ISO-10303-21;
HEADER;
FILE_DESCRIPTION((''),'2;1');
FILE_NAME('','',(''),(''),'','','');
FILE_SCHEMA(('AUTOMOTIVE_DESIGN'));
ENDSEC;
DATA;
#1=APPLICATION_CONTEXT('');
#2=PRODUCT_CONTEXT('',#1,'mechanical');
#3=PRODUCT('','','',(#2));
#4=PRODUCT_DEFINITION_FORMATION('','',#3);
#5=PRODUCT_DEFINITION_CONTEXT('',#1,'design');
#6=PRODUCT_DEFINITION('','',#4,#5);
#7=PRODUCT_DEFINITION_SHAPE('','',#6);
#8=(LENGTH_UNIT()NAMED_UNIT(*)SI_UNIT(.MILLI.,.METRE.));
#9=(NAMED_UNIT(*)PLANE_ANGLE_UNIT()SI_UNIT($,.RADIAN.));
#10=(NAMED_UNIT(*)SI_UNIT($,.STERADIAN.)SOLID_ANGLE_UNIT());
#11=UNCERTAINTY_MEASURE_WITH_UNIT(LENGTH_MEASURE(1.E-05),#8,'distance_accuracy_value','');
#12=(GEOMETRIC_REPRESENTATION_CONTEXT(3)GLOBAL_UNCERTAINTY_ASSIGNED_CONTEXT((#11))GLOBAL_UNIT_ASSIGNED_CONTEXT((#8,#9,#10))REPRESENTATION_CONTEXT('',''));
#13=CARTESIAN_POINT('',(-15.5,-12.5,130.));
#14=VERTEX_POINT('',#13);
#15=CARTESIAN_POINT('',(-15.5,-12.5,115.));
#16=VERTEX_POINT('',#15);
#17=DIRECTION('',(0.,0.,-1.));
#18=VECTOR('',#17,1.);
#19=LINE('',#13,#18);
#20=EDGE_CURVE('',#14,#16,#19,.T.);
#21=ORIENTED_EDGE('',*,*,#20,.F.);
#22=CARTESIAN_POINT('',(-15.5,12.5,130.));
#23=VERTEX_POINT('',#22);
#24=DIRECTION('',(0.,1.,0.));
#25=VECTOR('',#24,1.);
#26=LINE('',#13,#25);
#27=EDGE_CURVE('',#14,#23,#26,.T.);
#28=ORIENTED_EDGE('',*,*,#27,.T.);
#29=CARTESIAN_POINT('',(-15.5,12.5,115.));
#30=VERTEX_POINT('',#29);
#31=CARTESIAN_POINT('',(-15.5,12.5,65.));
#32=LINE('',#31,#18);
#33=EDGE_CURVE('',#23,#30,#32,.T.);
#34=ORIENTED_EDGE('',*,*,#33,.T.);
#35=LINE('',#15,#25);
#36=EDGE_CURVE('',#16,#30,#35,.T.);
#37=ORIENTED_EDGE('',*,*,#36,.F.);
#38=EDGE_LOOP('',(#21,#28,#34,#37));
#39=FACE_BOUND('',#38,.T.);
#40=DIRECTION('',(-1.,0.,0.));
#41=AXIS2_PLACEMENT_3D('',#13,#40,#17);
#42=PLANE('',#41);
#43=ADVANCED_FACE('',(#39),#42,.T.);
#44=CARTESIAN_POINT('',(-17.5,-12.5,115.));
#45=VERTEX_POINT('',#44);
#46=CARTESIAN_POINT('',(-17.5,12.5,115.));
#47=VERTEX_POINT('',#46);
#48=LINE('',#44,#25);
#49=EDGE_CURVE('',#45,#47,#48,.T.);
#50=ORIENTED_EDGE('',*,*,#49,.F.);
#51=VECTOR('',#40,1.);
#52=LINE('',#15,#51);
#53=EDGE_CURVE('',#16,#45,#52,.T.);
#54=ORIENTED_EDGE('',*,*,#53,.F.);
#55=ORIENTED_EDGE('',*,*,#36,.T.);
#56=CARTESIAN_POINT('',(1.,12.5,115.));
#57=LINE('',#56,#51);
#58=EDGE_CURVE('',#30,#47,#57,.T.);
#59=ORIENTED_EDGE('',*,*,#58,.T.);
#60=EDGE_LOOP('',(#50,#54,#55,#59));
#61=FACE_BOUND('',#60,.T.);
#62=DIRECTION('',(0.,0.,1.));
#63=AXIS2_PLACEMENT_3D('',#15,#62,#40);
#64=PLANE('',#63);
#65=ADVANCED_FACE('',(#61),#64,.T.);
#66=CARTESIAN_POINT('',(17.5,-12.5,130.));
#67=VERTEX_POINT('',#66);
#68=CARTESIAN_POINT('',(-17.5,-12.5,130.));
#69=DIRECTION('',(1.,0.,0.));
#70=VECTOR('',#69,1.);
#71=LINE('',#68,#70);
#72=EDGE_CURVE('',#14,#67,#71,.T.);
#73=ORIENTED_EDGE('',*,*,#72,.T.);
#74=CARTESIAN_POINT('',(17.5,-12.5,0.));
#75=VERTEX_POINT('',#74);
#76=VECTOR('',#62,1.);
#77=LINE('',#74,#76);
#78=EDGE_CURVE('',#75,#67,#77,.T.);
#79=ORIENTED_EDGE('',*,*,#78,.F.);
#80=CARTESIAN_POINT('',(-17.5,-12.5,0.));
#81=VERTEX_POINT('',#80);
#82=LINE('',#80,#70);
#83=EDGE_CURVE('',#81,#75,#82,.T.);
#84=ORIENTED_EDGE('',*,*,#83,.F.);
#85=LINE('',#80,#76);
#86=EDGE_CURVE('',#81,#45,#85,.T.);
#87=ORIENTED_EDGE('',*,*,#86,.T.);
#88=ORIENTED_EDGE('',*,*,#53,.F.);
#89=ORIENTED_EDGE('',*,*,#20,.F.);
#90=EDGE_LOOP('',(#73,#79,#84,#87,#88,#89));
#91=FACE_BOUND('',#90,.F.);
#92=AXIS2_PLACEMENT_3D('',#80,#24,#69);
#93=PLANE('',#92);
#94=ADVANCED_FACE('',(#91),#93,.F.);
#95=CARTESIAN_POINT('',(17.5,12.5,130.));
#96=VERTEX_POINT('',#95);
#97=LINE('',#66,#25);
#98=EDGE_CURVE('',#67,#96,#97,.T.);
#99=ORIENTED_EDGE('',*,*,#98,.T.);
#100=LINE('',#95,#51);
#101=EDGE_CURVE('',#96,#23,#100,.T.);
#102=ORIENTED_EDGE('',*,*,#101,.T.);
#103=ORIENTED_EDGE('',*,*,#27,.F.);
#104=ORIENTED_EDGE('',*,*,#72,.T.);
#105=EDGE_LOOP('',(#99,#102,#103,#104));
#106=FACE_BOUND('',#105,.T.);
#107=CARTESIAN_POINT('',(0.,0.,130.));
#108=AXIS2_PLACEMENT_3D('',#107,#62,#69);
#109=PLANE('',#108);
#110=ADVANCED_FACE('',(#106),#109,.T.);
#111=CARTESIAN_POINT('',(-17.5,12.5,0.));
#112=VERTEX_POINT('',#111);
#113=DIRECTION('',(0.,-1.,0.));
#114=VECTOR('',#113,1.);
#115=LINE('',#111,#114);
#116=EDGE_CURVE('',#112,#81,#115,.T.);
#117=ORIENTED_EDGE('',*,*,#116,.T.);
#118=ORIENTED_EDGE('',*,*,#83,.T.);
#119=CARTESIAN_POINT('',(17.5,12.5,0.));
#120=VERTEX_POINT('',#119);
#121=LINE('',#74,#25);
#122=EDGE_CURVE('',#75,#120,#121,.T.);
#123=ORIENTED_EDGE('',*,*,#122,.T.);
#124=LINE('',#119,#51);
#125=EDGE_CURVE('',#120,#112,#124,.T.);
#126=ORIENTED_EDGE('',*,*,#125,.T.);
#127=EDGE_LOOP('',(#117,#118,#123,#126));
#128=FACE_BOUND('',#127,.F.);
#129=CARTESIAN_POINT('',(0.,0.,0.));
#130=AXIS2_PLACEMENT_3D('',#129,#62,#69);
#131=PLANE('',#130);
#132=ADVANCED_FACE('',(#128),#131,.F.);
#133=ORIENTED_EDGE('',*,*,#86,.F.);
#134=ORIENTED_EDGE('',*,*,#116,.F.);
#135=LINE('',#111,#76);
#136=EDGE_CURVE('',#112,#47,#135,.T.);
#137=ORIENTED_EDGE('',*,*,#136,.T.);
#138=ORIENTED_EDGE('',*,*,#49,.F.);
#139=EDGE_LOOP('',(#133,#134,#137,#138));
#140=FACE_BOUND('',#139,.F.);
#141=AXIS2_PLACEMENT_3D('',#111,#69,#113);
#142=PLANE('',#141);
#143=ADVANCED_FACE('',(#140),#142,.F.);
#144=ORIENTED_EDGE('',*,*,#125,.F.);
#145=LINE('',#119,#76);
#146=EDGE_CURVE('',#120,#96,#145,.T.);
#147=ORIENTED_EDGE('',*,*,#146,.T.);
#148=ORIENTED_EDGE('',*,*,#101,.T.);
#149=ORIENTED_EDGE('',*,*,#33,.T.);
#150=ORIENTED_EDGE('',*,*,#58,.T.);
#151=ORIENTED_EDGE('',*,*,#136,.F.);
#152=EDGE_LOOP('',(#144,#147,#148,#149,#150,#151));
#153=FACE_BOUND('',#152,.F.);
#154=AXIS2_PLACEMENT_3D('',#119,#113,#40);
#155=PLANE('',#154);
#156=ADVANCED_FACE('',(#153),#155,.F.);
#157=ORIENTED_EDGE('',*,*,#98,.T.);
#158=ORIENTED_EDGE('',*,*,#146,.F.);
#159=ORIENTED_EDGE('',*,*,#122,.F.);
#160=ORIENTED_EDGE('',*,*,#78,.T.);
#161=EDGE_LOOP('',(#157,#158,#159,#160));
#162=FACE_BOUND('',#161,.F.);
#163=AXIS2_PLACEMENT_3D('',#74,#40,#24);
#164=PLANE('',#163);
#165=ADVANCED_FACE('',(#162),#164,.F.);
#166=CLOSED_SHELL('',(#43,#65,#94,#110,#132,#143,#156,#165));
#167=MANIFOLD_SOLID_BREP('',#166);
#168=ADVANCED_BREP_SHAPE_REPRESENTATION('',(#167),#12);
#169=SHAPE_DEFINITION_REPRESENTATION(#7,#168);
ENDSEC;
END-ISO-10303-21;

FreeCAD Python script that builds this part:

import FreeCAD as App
import Part
import Sketcher
from FreeCAD import Vector
Q = App.Units.Quantity

doc = App.newDocument("Part")
params = doc.addObject("Spreadsheet::Sheet", "Params")
for row, (alias, value) in enumerate([
    ("sketch1_width", "35 mm"),
    ("sketch1_height", "25 mm"),
    ("pad1_length", "130 mm"),
    ("sketch2_width", "2 mm"),
    ("sketch2_height", "15 mm"),
], start=1):
    params.set(f"A{row}", alias)
    params.set(f"B{row}", "=" + value)
    params.setAlias(f"B{row}", alias)

body = doc.addObject("PartDesign::Body", "Body")

# Sketch on XY plane
sketch1 = body.newObject("Sketcher::SketchObject", "Sketch")
sketch1.AttachmentSupport = (doc.getObject("XY_Plane"), [""])
sketch1.MapMode = "FlatFace"
sketch1.addGeometry([
    Part.LineSegment(Vector(-17.5, 12.5, 0), Vector(-17.5, -12.5, 0)),
    Part.LineSegment(Vector(-17.5, -12.5, 0), Vector(17.5, -12.5, 0)),
    Part.LineSegment(Vector(17.5, -12.5, 0), Vector(17.5, 12.5, 0)),
    Part.LineSegment(Vector(17.5, 12.5, 0), Vector(-17.5, 12.5, 0)),
], False)
sketch1.addConstraint([
    Sketcher.Constraint("Coincident", 0, 2, 1, 1),
    Sketcher.Constraint("Coincident", 1, 2, 2, 1),
    Sketcher.Constraint("Coincident", 2, 2, 3, 1),
    Sketcher.Constraint("Coincident", 3, 2, 0, 1),
    Sketcher.Constraint("Vertical", 0),
    Sketcher.Constraint("Horizontal", 1),
    Sketcher.Constraint("Vertical", 2),
    Sketcher.Constraint("Horizontal", 3),
    Sketcher.Constraint("Symmetric", 0, 2, 2, 2, -1, 1),
    Sketcher.Constraint("DistanceX", 1, 1, 1, 2, Q("35 mm")),
    Sketcher.Constraint("DistanceY", 0, 2, 0, 1, Q("25 mm")),
])
sketch1.setExpression("Constraints[9]", "Params.sketch1_width")
sketch1.setExpression("Constraints[10]", "Params.sketch1_height")
pad1 = body.newObject("PartDesign::Pad", "Pad")
pad1.Profile = sketch1
pad1.setExpression("Length", "Params.pad1_length")

# Sketch on XZ plane
sketch2 = body.newObject("Sketcher::SketchObject", "Sketch001")
sketch2.AttachmentSupport = (doc.getObject("XZ_Plane"), [""])
sketch2.MapMode = "FlatFace"
sketch2.AttachmentOffset = App.Placement(Vector(0, 0, 12.5), App.Rotation())
sketch2.addGeometry([
    Part.LineSegment(Vector(-17.5, 115, 0), Vector(-15.5, 115, 0)),
    Part.LineSegment(Vector(-15.5, 115, 0), Vector(-15.5, 130, 0)),
    Part.LineSegment(Vector(-15.5, 130, 0), Vector(-17.5, 130, 0)),
    Part.LineSegment(Vector(-17.5, 130, 0), Vector(-17.5, 115, 0)),
], False)
sketch2.addConstraint([
    Sketcher.Constraint("Coincident", 0, 2, 1, 1),
    Sketcher.Constraint("Coincident", 1, 2, 2, 1),
    Sketcher.Constraint("Coincident", 2, 2, 3, 1),
    Sketcher.Constraint("Coincident", 3, 2, 0, 1),
    Sketcher.Constraint("Horizontal", 0),
    Sketcher.Constraint("Vertical", 1),
    Sketcher.Constraint("Horizontal", 2),
    Sketcher.Constraint("Vertical", 3),
    Sketcher.Constraint("DistanceX", 0, 1, 0, 2, Q("2 mm")),
    Sketcher.Constraint("DistanceY", 1, 1, 1, 2, Q("15 mm")),
    Sketcher.Constraint("DistanceY", -1, 1, 0, 2, Q("115 mm")),
    Sketcher.Constraint("DistanceX", 0, 2, -1, 1, Q("15.5 mm")),
])
sketch2.setExpression("Constraints[8]", "Params.sketch2_width")
sketch2.setExpression("Constraints[9]", "Params.sketch2_height")
pocket1 = body.newObject("PartDesign::Pocket", "Pocket")
pocket1.Profile = sketch2
pocket1.Type = "ThroughAll"

doc.recompute()
